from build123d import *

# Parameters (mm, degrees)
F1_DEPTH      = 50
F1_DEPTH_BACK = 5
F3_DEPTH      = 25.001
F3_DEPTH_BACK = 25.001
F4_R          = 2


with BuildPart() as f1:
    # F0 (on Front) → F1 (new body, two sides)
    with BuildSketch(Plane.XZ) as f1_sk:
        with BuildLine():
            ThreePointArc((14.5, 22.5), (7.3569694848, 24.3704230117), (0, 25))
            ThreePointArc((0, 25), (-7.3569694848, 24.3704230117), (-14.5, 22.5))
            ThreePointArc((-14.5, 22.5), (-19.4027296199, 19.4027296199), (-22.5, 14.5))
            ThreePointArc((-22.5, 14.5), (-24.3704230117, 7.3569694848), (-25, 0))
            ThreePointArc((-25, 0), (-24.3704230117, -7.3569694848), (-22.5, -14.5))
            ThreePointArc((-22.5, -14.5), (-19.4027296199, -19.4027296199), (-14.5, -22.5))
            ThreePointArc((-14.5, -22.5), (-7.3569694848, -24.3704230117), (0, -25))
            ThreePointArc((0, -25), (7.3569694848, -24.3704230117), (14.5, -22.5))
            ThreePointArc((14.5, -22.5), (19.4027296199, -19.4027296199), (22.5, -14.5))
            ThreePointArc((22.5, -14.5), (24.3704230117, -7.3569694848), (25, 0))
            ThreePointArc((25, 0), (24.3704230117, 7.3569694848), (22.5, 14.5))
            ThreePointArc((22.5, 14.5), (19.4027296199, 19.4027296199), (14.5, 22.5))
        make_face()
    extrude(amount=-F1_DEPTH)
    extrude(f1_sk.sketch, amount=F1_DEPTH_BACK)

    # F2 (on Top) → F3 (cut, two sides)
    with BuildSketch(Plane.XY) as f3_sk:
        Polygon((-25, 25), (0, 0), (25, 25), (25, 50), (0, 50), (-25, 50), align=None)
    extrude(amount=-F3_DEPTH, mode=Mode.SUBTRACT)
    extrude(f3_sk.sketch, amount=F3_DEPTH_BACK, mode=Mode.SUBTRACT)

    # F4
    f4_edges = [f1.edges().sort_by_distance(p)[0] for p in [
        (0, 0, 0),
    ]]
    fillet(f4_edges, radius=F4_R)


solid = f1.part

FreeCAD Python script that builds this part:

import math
import FreeCAD as App
import Part
import Sketcher

V = App.Vector


def edges_at(feature, points):
    """Names of the edges that pass closest to the given points."""
    edges = feature.Shape.Edges
    near = lambda p: min(range(len(edges)), key=lambda i: edges[i].distToShape(Part.Vertex(*p))[0])
    return sorted({f"Edge{near(p) + 1}" for p in points})


def add_polygon(sketch, points):
    """Adds a closed chain of lines whose ends are joined by coincident constraints."""
    first, n = sketch.GeometryCount, len(points)
    for a, b in zip(points, points[1:] + points[:1]):
        sketch.addGeometry(Part.LineSegment(App.Vector(*a, 0), App.Vector(*b, 0)), False)
    for i in range(n):
        sketch.addConstraint(Sketcher.Constraint("Coincident", first + i, 2, first + (i + 1) % n, 1))

doc = App.newDocument("Part")
body = doc.addObject("PartDesign::Body", "Body")

# Sketch on XZ plane
sketch1 = body.newObject("Sketcher::SketchObject", "Sketch")
sketch1.AttachmentSupport = (doc.getObject("XZ_Plane"), [""])
sketch1.MapMode = "FlatFace"
sketch1.addGeometry([
    Part.ArcOfCircle(Part.Circle(V(0, -18.3, 0), V(0, 0, 1), 43.3), math.radians(70.435186), math.radians(90)),  # 0
    Part.ArcOfCircle(Part.Circle(V(0, -18.3, 0), V(0, 0, 1), 43.3), math.radians(90), math.radians(109.564814)),  # 1
    Part.ArcOfCircle(Part.Circle(V(-10.089354, 10.089354, 0), V(0, 0, 1), 13.171103), math.radians(109.564814), math.radians(160.435186)),  # 2
    Part.ArcOfCircle(Part.Circle(V(18.3, 0, 0), V(0, 0, 1), 43.3), math.radians(160.435186), math.radians(180)),  # 3
    Part.ArcOfCircle(Part.Circle(V(18.3, 0, 0), V(0, 0, 1), 43.3), math.radians(180), math.radians(199.564814)),  # 4
    Part.ArcOfCircle(Part.Circle(V(-10.089354, -10.089354, 0), V(0, 0, 1), 13.171103), math.radians(-160.435186), math.radians(-109.564814)),  # 5
    Part.ArcOfCircle(Part.Circle(V(0, 18.3, 0), V(0, 0, 1), 43.3), math.radians(-109.564814), math.radians(-90)),  # 6
    Part.ArcOfCircle(Part.Circle(V(0, 18.3, 0), V(0, 0, 1), 43.3), math.radians(-90), math.radians(-70.435186)),  # 7
    Part.ArcOfCircle(Part.Circle(V(10.089354, -10.089354, 0), V(0, 0, 1), 13.171103), math.radians(-70.435186), math.radians(-19.564814)),  # 8
    Part.ArcOfCircle(Part.Circle(V(-18.3, 0, 0), V(0, 0, 1), 43.3), math.radians(-19.564814), math.radians(0)),  # 9
    Part.ArcOfCircle(Part.Circle(V(-18.3, 0, 0), V(0, 0, 1), 43.3), math.radians(0), math.radians(19.564814)),  # 10
    Part.ArcOfCircle(Part.Circle(V(10.089354, 10.089354, 0), V(0, 0, 1), 13.171103), math.radians(19.564814), math.radians(70.435186)),  # 11
], False)
sketch1.addConstraint([
    Sketcher.Constraint("Tangent", 0, 2, 1, 1),
    Sketcher.Constraint("Tangent", 1, 2, 2, 1),
    Sketcher.Constraint("Tangent", 2, 2, 3, 1),
    Sketcher.Constraint("Tangent", 3, 2, 4, 1),
    Sketcher.Constraint("Tangent", 4, 2, 5, 1),
    Sketcher.Constraint("Tangent", 5, 2, 6, 1),
    Sketcher.Constraint("Tangent", 6, 2, 7, 1),
    Sketcher.Constraint("Tangent", 7, 2, 8, 1),
    Sketcher.Constraint("Tangent", 8, 2, 9, 1),
    Sketcher.Constraint("Tangent", 9, 2, 10, 1),
    Sketcher.Constraint("Tangent", 10, 2, 11, 1),
    Sketcher.Constraint("Tangent", 11, 2, 0, 1),
    Sketcher.Constraint("Equal", 0, 1),
    Sketcher.Constraint("Equal", 1, 3),
    Sketcher.Constraint("Equal", 3, 4),
    Sketcher.Constraint("Equal", 2, 5),
    Sketcher.Constraint("Equal", 4, 6),
    Sketcher.Constraint("Equal", 6, 7),
    Sketcher.Constraint("Equal", 5, 8),
    Sketcher.Constraint("Equal", 7, 9),
    Sketcher.Constraint("Equal", 9, 10),
    Sketcher.Constraint("Equal", 8, 11),
    Sketcher.Constraint("Symmetric", 0, 3, 6, 3, -1, 1),
    Sketcher.Constraint("Symmetric", 3, 3, 9, 3, -1, 1),
    Sketcher.Constraint("Symmetric", 5, 3, 8, 3, -2),
    Sketcher.Constraint("PointOnObject", 0, 2, -2),
    Sketcher.Constraint("PointOnObject", 3, 2, -1),
    Sketcher.Constraint("PointOnObject", 6, 2, -2),
    Sketcher.Constraint("PointOnObject", 9, 2, -1),
    Sketcher.Constraint("Radius", 0, 43.3),
    Sketcher.Constraint("DistanceY", -1, 1, 0, 2, 25.0),
    Sketcher.Constraint("DistanceX", 3, 2, -1, 1, 25.0),
    Sketcher.Constraint("DistanceX", 2, 2, 1, 2, 8.0),
])
pad1 = body.newObject("PartDesign::Pad", "Pad")
pad1.Profile = sketch1
pad1.Type = "TwoLengths"
pad1.Length = 50
pad1.Length2 = 5
pad1.Reversed = True

# Sketch on XY plane
sketch2 = body.newObject("Sketcher::SketchObject", "Sketch001")
sketch2.AttachmentSupport = (doc.getObject("XY_Plane"), [""])
sketch2.MapMode = "FlatFace"
add_polygon(sketch2, [(-25, 25), (0, 0), (25, 25), (25, 50), (-25, 50)])  # lines 0-4
sketch2.addConstraint([
    Sketcher.Constraint("Vertical", 2),
    Sketcher.Constraint("Horizontal", 3),
    Sketcher.Constraint("Vertical", 4),
    Sketcher.Constraint("Coincident", 0, 2, -1, 1),
    Sketcher.Constraint("Symmetric", 1, 2, 4, 2, -2),
    Sketcher.Constraint("Perpendicular", 0, 1),
    Sketcher.Constraint("DistanceX", 3, 2, 3, 1, 50.0),
    Sketcher.Constraint("DistanceY", 2, 1, 2, 2, 25.0),
])
pocket1 = body.newObject("PartDesign::Pocket", "Pocket")
pocket1.Profile = sketch2
pocket1.Type = "ThroughAll"
pocket1.Midplane = True
doc.recompute()

fillet = body.newObject("PartDesign::Fillet", "Fillet")
fillet.Base = (pocket1, edges_at(pocket1, [(0, 0, 0)]))
fillet.Radius = 2

doc.recompute()
